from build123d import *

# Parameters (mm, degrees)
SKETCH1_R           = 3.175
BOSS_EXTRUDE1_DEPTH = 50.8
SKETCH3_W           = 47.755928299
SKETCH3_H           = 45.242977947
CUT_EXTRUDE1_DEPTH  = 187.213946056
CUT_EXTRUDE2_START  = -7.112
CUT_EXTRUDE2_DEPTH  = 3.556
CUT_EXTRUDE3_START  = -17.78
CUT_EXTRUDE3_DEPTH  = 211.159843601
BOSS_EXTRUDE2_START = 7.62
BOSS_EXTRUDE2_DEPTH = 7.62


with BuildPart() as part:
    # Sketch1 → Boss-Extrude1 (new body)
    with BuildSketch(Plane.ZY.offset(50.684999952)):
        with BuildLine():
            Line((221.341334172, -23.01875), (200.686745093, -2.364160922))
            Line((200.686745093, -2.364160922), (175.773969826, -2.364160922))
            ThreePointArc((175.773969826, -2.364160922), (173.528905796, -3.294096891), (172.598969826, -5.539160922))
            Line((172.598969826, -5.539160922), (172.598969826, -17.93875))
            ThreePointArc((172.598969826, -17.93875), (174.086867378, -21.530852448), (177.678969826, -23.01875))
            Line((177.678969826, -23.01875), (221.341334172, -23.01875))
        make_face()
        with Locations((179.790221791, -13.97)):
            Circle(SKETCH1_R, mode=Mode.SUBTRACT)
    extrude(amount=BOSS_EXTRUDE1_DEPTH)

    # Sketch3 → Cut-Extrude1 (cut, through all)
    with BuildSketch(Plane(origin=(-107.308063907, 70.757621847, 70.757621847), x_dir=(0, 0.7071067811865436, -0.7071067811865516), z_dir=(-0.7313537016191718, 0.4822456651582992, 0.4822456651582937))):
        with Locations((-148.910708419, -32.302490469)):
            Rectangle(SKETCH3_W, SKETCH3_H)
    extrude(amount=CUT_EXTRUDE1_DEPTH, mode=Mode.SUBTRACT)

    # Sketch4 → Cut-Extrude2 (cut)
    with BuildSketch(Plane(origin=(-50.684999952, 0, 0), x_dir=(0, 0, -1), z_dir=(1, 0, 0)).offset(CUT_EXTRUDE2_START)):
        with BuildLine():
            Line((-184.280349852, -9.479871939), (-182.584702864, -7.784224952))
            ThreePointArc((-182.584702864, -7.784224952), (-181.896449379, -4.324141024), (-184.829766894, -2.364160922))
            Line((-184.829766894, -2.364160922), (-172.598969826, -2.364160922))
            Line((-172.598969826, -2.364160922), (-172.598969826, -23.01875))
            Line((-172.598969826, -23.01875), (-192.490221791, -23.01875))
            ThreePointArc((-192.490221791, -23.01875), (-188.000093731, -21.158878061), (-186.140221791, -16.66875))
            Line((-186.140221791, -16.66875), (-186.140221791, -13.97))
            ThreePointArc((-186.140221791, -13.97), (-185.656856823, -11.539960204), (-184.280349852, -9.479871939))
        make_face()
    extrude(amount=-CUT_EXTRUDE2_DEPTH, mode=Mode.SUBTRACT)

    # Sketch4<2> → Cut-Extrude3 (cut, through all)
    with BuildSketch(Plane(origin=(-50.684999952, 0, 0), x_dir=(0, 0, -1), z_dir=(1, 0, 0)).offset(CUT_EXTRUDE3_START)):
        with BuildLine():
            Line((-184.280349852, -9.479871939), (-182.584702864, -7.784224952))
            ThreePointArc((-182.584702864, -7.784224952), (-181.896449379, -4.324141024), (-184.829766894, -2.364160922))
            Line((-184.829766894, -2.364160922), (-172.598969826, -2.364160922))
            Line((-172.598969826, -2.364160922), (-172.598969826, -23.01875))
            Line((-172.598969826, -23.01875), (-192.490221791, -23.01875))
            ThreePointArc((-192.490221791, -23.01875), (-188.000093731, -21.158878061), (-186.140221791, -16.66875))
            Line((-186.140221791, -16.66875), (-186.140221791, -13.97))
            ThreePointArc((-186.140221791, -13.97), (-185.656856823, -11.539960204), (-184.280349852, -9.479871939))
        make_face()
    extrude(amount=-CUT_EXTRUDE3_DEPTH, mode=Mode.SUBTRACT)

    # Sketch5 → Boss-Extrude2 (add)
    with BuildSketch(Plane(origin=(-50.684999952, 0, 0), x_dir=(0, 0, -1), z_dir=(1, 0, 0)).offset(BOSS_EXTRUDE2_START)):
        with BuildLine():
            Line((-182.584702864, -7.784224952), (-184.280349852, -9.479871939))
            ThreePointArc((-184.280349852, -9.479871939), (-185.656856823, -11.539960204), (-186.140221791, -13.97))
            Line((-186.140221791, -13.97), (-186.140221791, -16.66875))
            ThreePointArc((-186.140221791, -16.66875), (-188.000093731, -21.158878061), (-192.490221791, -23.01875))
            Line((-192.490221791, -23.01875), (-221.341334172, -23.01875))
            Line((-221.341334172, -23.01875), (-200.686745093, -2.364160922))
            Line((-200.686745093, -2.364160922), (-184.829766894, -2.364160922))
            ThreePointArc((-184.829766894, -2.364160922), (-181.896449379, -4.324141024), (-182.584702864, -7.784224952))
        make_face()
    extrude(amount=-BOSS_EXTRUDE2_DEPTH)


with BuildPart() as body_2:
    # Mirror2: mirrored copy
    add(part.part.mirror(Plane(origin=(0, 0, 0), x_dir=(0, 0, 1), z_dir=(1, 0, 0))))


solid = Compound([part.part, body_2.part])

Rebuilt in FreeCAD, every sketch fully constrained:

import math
import FreeCAD as App
import Part
import Sketcher
from FreeCAD import Vector
Q = App.Units.Quantity

doc = App.newDocument("Part")
body = doc.addObject("PartDesign::Body", "Body")

# Sketch on YZ plane
sketch1 = body.newObject("Sketcher::SketchObject", "Sketch")
sketch1.AttachmentSupport = (doc.getObject("YZ_Plane"), [""])
sketch1.MapMode = "FlatFace"
sketch1.AttachmentOffset = App.Placement(Vector(0, 0, -50.685), App.Rotation())
sketch1.addGeometry(Part.LineSegment(Vector(-23, 221.3, 0), Vector(-2.4, 200.7, 0)), False)
sketch1.addGeometry(Part.LineSegment(Vector(-2.4, 200.7, 0), Vector(-2.4, 175.8, 0)), False)
sketch1.addGeometry(Part.ArcOfCircle(Part.Circle(Vector(-5.5, 175.8, 0), Vector(0, 0, 1), 3.2), math.radians(-90), math.radians(0)), False)
sketch1.addGeometry(Part.LineSegment(Vector(-5.5, 172.6, 0), Vector(-17.9, 172.6, 0)), False)
sketch1.addGeometry(Part.ArcOfCircle(Part.Circle(Vector(-17.9, 177.7, 0), Vector(0, 0, 1), 5.1), math.radians(-180), math.radians(-90)), False)
sketch1.addGeometry(Part.LineSegment(Vector(-23, 177.7, 0), Vector(-23, 221.3, 0)), False)
sketch1.addGeometry(Part.Circle(Vector(-14, 179.8, 0), Vector(0, 0, 1), 3.2), False)
sketch1.addConstraint(Sketcher.Constraint("Coincident", 0, 2, 1, 1))
sketch1.addConstraint(Sketcher.Constraint("Tangent", 1, 2, 2, 2))
sketch1.addConstraint(Sketcher.Constraint("Tangent", 2, 1, 3, 1))
sketch1.addConstraint(Sketcher.Constraint("Tangent", 3, 2, 4, 2))
sketch1.addConstraint(Sketcher.Constraint("Tangent", 4, 1, 5, 1))
sketch1.addConstraint(Sketcher.Constraint("Coincident", 5, 2, 0, 1))
sketch1.addConstraint(Sketcher.Constraint("Vertical", 1))
sketch1.addConstraint(Sketcher.Constraint("Horizontal", 3))
sketch1.addConstraint(Sketcher.Constraint("Vertical", 5))
sketch1.addConstraint(Sketcher.Constraint("Equal", 2, 6))
sketch1.addConstraint(Sketcher.Constraint("Radius", 4, Q("0.2 in")))
sketch1.addConstraint(Sketcher.Constraint("Diameter", 6, Q("0.25 in")))
sketch1.addConstraint(Sketcher.Constraint("Angle", 0, Q("-45 deg")))
sketch1.addConstraint(Sketcher.Constraint("Distance", 0, Q("1.15 in")))
sketch1.addConstraint(Sketcher.Constraint("DistanceX", 6, 3, -1, 1, Q("0.55 in")))
sketch1.addConstraint(Sketcher.Constraint("DistanceX", 4, 1, -1, 1, Q("0.90625 in")))
sketch1.addConstraint(Sketcher.Constraint("DistanceY", 1, 2, 1, 1, Q("24.912775 mm")))
sketch1.addConstraint(Sketcher.Constraint("DistanceY", -1, 1, 2, 3, Q("175.77397 mm")))
sketch1.addConstraint(Sketcher.Constraint("DistanceY", -1, 1, 6, 3, Q("179.790222 mm")))
pad1 = body.newObject("PartDesign::Pad", "Pad")
pad1.Profile = sketch1
pad1.Length = Q("2 in")
pad1.Reversed = True

# Sketch on an angled plane
sketch2 = body.newObject("Sketcher::SketchObject", "Sketch001")
sketch2.Placement = App.Placement(Vector(-107.308064, 70.757622, 70.757622), App.Rotation(Vector(0, 0.707106781, -0.707106781), Vector(-0.68199836, -0.517145162, -0.517145162), Vector(-0.731353702, 0.482245665, 0.482245665), "ZXY"))
sketch2.addGeometry(Part.LineSegment(Vector(-173, -10, 0), Vector(-173, -55, 0)), False)
sketch2.addGeometry(Part.LineSegment(Vector(-173, -55, 0), Vector(-125, -55, 0)), False)
sketch2.addGeometry(Part.LineSegment(Vector(-125, -55, 0), Vector(-125, -10, 0)), False)
sketch2.addGeometry(Part.LineSegment(Vector(-125, -10, 0), Vector(-173, -10, 0)), False)
sketch2.addConstraint(Sketcher.Constraint("Coincident", 0, 2, 1, 1))
sketch2.addConstraint(Sketcher.Constraint("Coincident", 1, 2, 2, 1))
sketch2.addConstraint(Sketcher.Constraint("Coincident", 2, 2, 3, 1))
sketch2.addConstraint(Sketcher.Constraint("Coincident", 3, 2, 0, 1))
sketch2.addConstraint(Sketcher.Constraint("Vertical", 0))
sketch2.addConstraint(Sketcher.Constraint("Horizontal", 1))
sketch2.addConstraint(Sketcher.Constraint("Vertical", 2))
sketch2.addConstraint(Sketcher.Constraint("Horizontal", 3))
sketch2.addConstraint(Sketcher.Constraint("DistanceX", 1, 1, 1, 2, Q("47.755928 mm")))
sketch2.addConstraint(Sketcher.Constraint("DistanceY", 2, 2, -1, 1, Q("9.681001 mm")))
sketch2.addConstraint(Sketcher.Constraint("DistanceY", 0, 2, 0, 1, Q("45.242978 mm")))
sketch2.addConstraint(Sketcher.Constraint("DistanceX", 0, 2, -1, 1, Q("172.788672 mm")))
pocket1 = body.newObject("PartDesign::Pocket", "Pocket")
pocket1.Profile = sketch2
pocket1.Type = "ThroughAll"
pocket1.Reversed = True

# Sketch on YZ plane
sketch3 = body.newObject("Sketcher::SketchObject", "Sketch002")
sketch3.AttachmentSupport = (doc.getObject("YZ_Plane"), [""])
sketch3.MapMode = "FlatFace"
sketch3.AttachmentOffset = App.Placement(Vector(0, 0, -57.797), App.Rotation())
sketch3.addGeometry(Part.LineSegment(Vector(-7.8, 182.6, 0), Vector(-9.5, 184.3, 0)), False)
sketch3.addGeometry(Part.ArcOfCircle(Part.Circle(Vector(-14, 179.8, 0), Vector(0, 0, 1), 6.3), math.radians(45), math.radians(90)), False)
sketch3.addGeometry(Part.LineSegment(Vector(-14, 186.1, 0), Vector(-16.7, 186.1, 0)), False)
sketch3.addGeometry(Part.ArcOfCircle(Part.Circle(Vector(-16.7, 192.5, 0), Vector(0, 0, 1), 6.3), math.radians(180), math.radians(270)), False)
sketch3.addGeometry(Part.LineSegment(Vector(-23, 192.5, 0), Vector(-23, 172.6, 0)), False)
sketch3.addGeometry(Part.LineSegment(Vector(-23, 172.6, 0), Vector(-2.4, 172.6, 0)), False)
sketch3.addGeometry(Part.LineSegment(Vector(-2.4, 172.6, 0), Vector(-2.4, 184.8, 0)), False)
sketch3.addGeometry(Part.ArcOfCircle(Part.Circle(Vector(-5.5, 184.8, 0), Vector(0, 0, 1), 3.2), math.radians(-135), math.radians(0)), False)
sketch3.addConstraint(Sketcher.Constraint("Tangent", 0, 2, 1, 1))
sketch3.addConstraint(Sketcher.Constraint("Tangent", 1, 2, 2, 1))
sketch3.addConstraint(Sketcher.Constraint("Tangent", 2, 2, 3, 2))
sketch3.addConstraint(Sketcher.Constraint("Tangent", 3, 1, 4, 1))
sketch3.addConstraint(Sketcher.Constraint("Coincident", 4, 2, 5, 1))
sketch3.addConstraint(Sketcher.Constraint("Coincident", 5, 2, 6, 1))
sketch3.addConstraint(Sketcher.Constraint("Tangent", 6, 2, 7, 2))
sketch3.addConstraint(Sketcher.Constraint("Tangent", 7, 1, 0, 1))
sketch3.addConstraint(Sketcher.Constraint("Horizontal", 2))
sketch3.addConstraint(Sketcher.Constraint("Vertical", 4))
sketch3.addConstraint(Sketcher.Constraint("Horizontal", 5))
sketch3.addConstraint(Sketcher.Constraint("Vertical", 6))
sketch3.addConstraint(Sketcher.Constraint("Equal", 1, 3))
sketch3.addConstraint(Sketcher.Constraint("Radius", 1, Q("0.25 in")))
sketch3.addConstraint(Sketcher.Constraint("Angle", 0, Q("135 deg")))
sketch3.addConstraint(Sketcher.Constraint("Radius", 7, Q("0.125 in")))
sketch3.addConstraint(Sketcher.Constraint("DistanceX", 1, 3, -1, 1, Q("0.55 in")))
sketch3.addConstraint(Sketcher.Constraint("DistanceX", 3, 3, -1, 1, Q("0.65625 in")))
sketch3.addConstraint(Sketcher.Constraint("DistanceX", 5, 1, 5, 2, Q("20.654589 mm")))
sketch3.addConstraint(Sketcher.Constraint("DistanceY", 4, 2, 4, 1, Q("19.891252 mm")))
sketch3.addConstraint(Sketcher.Constraint("DistanceY", -1, 1, 1, 3, Q("179.790222 mm")))
pocket2 = body.newObject("PartDesign::Pocket", "Pocket001")
pocket2.Profile = sketch3
pocket2.Length = Q("0.14 in")

# Sketch on YZ plane
sketch4 = body.newObject("Sketcher::SketchObject", "Sketch003")
sketch4.AttachmentSupport = (doc.getObject("YZ_Plane"), [""])
sketch4.MapMode = "FlatFace"
sketch4.AttachmentOffset = App.Placement(Vector(0, 0, -68.465), App.Rotation())
sketch4.addGeometry(Part.LineSegment(Vector(-7.8, 182.6, 0), Vector(-9.5, 184.3, 0)), False)
sketch4.addGeometry(Part.ArcOfCircle(Part.Circle(Vector(-14, 179.8, 0), Vector(0, 0, 1), 6.3), math.radians(45), math.radians(90)), False)
sketch4.addGeometry(Part.LineSegment(Vector(-14, 186.1, 0), Vector(-16.7, 186.1, 0)), False)
sketch4.addGeometry(Part.ArcOfCircle(Part.Circle(Vector(-16.7, 192.5, 0), Vector(0, 0, 1), 6.3), math.radians(180), math.radians(270)), False)
sketch4.addGeometry(Part.LineSegment(Vector(-23, 192.5, 0), Vector(-23, 172.6, 0)), False)
sketch4.addGeometry(Part.LineSegment(Vector(-23, 172.6, 0), Vector(-2.4, 172.6, 0)), False)
sketch4.addGeometry(Part.LineSegment(Vector(-2.4, 172.6, 0), Vector(-2.4, 184.8, 0)), False)
sketch4.addGeometry(Part.ArcOfCircle(Part.Circle(Vector(-5.5, 184.8, 0), Vector(0, 0, 1), 3.2), math.radians(-135), math.radians(0)), False)
sketch4.addConstraint(Sketcher.Constraint("Tangent", 0, 2, 1, 1))
sketch4.addConstraint(Sketcher.Constraint("Tangent", 1, 2, 2, 1))
sketch4.addConstraint(Sketcher.Constraint("Tangent", 2, 2, 3, 2))
sketch4.addConstraint(Sketcher.Constraint("Tangent", 3, 1, 4, 1))
sketch4.addConstraint(Sketcher.Constraint("Coincident", 4, 2, 5, 1))
sketch4.addConstraint(Sketcher.Constraint("Coincident", 5, 2, 6, 1))
sketch4.addConstraint(Sketcher.Constraint("Tangent", 6, 2, 7, 2))
sketch4.addConstraint(Sketcher.Constraint("Tangent", 7, 1, 0, 1))
sketch4.addConstraint(Sketcher.Constraint("Horizontal", 2))
sketch4.addConstraint(Sketcher.Constraint("Vertical", 4))
sketch4.addConstraint(Sketcher.Constraint("Horizontal", 5))
sketch4.addConstraint(Sketcher.Constraint("Vertical", 6))
sketch4.addConstraint(Sketcher.Constraint("Equal", 1, 3))
sketch4.addConstraint(Sketcher.Constraint("Radius", 1, Q("0.25 in")))
sketch4.addConstraint(Sketcher.Constraint("Angle", 0, Q("135 deg")))
sketch4.addConstraint(Sketcher.Constraint("Radius", 7, Q("0.125 in")))
sketch4.addConstraint(Sketcher.Constraint("DistanceX", 1, 3, -1, 1, Q("0.55 in")))
sketch4.addConstraint(Sketcher.Constraint("DistanceX", 3, 3, -1, 1, Q("0.65625 in")))
sketch4.addConstraint(Sketcher.Constraint("DistanceX", 5, 1, 5, 2, Q("20.654589 mm")))
sketch4.addConstraint(Sketcher.Constraint("DistanceY", 4, 2, 4, 1, Q("19.891252 mm")))
sketch4.addConstraint(Sketcher.Constraint("DistanceY", -1, 1, 1, 3, Q("179.790222 mm")))
pocket3 = body.newObject("PartDesign::Pocket", "Pocket002")
pocket3.Profile = sketch4
pocket3.Type = "ThroughAll"

# Sketch on YZ plane
sketch5 = body.newObject("Sketcher::SketchObject", "Sketch004")
sketch5.AttachmentSupport = (doc.getObject("YZ_Plane"), [""])
sketch5.MapMode = "FlatFace"
sketch5.AttachmentOffset = App.Placement(Vector(0, 0, -43.065), App.Rotation())
sketch5.addGeometry(Part.LineSegment(Vector(-9.5, 184.3, 0), Vector(-7.8, 182.6, 0)), False)
sketch5.addGeometry(Part.ArcOfCircle(Part.Circle(Vector(-5.5, 184.8, 0), Vector(0, 0, 1), 3.2), math.radians(-135), math.radians(0)), False)
sketch5.addGeometry(Part.LineSegment(Vector(-2.4, 184.8, 0), Vector(-2.4, 200.7, 0)), False)
sketch5.addGeometry(Part.LineSegment(Vector(-2.4, 200.7, 0), Vector(-23, 221.3, 0)), False)
sketch5.addGeometry(Part.LineSegment(Vector(-23, 221.3, 0), Vector(-23, 192.5, 0)), False)
sketch5.addGeometry(Part.ArcOfCircle(Part.Circle(Vector(-16.7, 192.5, 0), Vector(0, 0, 1), 6.3), math.radians(180), math.radians(270)), False)
sketch5.addGeometry(Part.LineSegment(Vector(-16.7, 186.1, 0), Vector(-14, 186.1, 0)), False)
sketch5.addGeometry(Part.ArcOfCircle(Part.Circle(Vector(-14, 179.8, 0), Vector(0, 0, 1), 6.3), math.radians(45), math.radians(90)), False)
sketch5.addConstraint(Sketcher.Constraint("Tangent", 0, 2, 1, 1))
sketch5.addConstraint(Sketcher.Constraint("Tangent", 1, 2, 2, 1))
sketch5.addConstraint(Sketcher.Constraint("Coincident", 2, 2, 3, 1))
sketch5.addConstraint(Sketcher.Constraint("Coincident", 3, 2, 4, 1))
sketch5.addConstraint(Sketcher.Constraint("Tangent", 4, 2, 5, 1))
sketch5.addConstraint(Sketcher.Constraint("Tangent", 5, 2, 6, 1))
sketch5.addConstraint(Sketcher.Constraint("Tangent", 6, 2, 7, 2))
sketch5.addConstraint(Sketcher.Constraint("Tangent", 7, 1, 0, 1))
sketch5.addConstraint(Sketcher.Constraint("Vertical", 2))
sketch5.addConstraint(Sketcher.Constraint("Vertical", 4))
sketch5.addConstraint(Sketcher.Constraint("Horizontal", 6))
sketch5.addConstraint(Sketcher.Constraint("Equal", 5, 7))
sketch5.addConstraint(Sketcher.Constraint("Parallel", 0, 3))
sketch5.addConstraint(Sketcher.Constraint("Radius", 5, Q("0.25 in")))
sketch5.addConstraint(Sketcher.Constraint("Angle", 0, Q("-45 deg")))
sketch5.addConstraint(Sketcher.Constraint("Radius", 1, Q("0.125 in")))
sketch5.addConstraint(Sketcher.Constraint("Distance", 3, Q("1.15 in")))
sketch5.addConstraint(Sketcher.Constraint("DistanceX", 7, 3, -1, 1, Q("0.55 in")))
sketch5.addConstraint(Sketcher.Constraint("DistanceX", 5, 3, -1, 1, Q("0.65625 in")))
sketch5.addConstraint(Sketcher.Constraint("DistanceY", 2, 1, 2, 2, Q("15.856978 mm")))
sketch5.addConstraint(Sketcher.Constraint("DistanceY", -1, 1, 5, 3, Q("192.490222 mm")))
pad2 = body.newObject("PartDesign::Pad", "Pad001")
pad2.Profile = sketch5
pad2.Length = Q("0.3 in")
pad2.Reversed = True
body2 = doc.addObject("PartDesign::Body", "Body001")
doc.recompute()

mirroring = doc.addObject("Part::Mirroring", "Mirroring")
mirroring.Source = body
mirroring.Base = Vector(0, 0, 0)
mirroring.Normal = Vector(1, 0, 0)
body2.BaseFeature = mirroring
doc.recompute()
mirroring.Visibility = False

doc.recompute()
